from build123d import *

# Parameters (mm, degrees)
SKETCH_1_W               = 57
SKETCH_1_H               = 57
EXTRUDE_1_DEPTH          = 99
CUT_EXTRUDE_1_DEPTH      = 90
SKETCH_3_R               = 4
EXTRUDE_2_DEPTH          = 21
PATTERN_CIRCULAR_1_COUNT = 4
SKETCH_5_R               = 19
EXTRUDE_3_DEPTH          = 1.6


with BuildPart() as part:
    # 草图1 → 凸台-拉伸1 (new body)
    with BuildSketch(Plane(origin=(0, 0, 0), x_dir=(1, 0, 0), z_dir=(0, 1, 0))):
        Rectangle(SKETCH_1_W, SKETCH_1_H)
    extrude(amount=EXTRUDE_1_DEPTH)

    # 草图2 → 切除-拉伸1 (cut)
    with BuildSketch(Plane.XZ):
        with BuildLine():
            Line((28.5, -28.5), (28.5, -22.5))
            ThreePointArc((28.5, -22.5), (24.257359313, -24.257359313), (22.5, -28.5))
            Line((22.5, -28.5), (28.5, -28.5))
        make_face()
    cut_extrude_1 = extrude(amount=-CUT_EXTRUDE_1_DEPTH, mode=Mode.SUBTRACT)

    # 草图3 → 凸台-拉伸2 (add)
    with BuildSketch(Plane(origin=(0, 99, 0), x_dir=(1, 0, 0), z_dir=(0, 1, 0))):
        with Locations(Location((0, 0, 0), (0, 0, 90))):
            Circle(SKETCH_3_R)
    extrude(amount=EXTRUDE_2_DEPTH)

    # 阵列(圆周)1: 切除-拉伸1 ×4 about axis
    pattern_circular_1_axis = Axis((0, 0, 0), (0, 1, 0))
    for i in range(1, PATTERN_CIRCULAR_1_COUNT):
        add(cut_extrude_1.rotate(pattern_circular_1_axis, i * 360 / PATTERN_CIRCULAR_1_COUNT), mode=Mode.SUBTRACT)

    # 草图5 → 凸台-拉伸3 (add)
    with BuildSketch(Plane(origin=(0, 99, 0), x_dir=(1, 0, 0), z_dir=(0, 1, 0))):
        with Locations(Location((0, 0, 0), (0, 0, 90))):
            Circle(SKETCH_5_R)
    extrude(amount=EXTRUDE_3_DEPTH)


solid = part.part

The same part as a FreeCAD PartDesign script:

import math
import FreeCAD as App
import Part
import Sketcher

V = App.Vector

doc = App.newDocument("Part")
body = doc.addObject("PartDesign::Body", "Body")

# Sketch on XZ plane
sketch1 = body.newObject("Sketcher::SketchObject", "Sketch")
sketch1.AttachmentSupport = (doc.getObject("XZ_Plane"), [""])
sketch1.MapMode = "FlatFace"
sketch1.addGeometry([
    Part.LineSegment(V(-28, -28, 0), V(-28, 28, 0)),
    Part.LineSegment(V(-28, 28, 0), V(28, 28, 0)),
    Part.LineSegment(V(28, 28, 0), V(28, -28, 0)),
    Part.LineSegment(V(28, -28, 0), V(-28, -28, 0)),
], False)
sketch1.addConstraint([
    Sketcher.Constraint("Coincident", 0, 2, 1, 1),
    Sketcher.Constraint("Coincident", 1, 2, 2, 1),
    Sketcher.Constraint("Coincident", 2, 2, 3, 1),
    Sketcher.Constraint("Coincident", 3, 2, 0, 1),
    Sketcher.Constraint("Vertical", 0),
    Sketcher.Constraint("Horizontal", 1),
    Sketcher.Constraint("Vertical", 2),
    Sketcher.Constraint("Horizontal", 3),
    Sketcher.Constraint("Symmetric", 0, 2, 2, 2, -1, 1),
    Sketcher.Constraint("Equal", 3, 0),
    Sketcher.Constraint("DistanceX", 1, 1, 1, 2, 57.0),
])
pad1 = body.newObject("PartDesign::Pad", "Pad")
pad1.Profile = sketch1
pad1.Length = 99
pad1.Reversed = True

# Sketch on XZ plane
sketch2 = body.newObject("Sketcher::SketchObject", "Sketch001")
sketch2.AttachmentSupport = (doc.getObject("XZ_Plane"), [""])
sketch2.MapMode = "FlatFace"
sketch2.addGeometry([
    Part.LineSegment(V(28, -28, 0), V(28, -22, 0)),
    Part.ArcOfCircle(Part.Circle(V(28, -28, 0), V(0, 0, 1), 6), math.radians(90), math.radians(180)),
    Part.LineSegment(V(22, -28, 0), V(28, -28, 0)),
], False)
sketch2.addConstraint([
    Sketcher.Constraint("Coincident", 0, 2, 1, 1),
    Sketcher.Constraint("Coincident", 1, 2, 2, 1),
    Sketcher.Constraint("Coincident", 2, 2, 0, 1),
    Sketcher.Constraint("Vertical", 0),
    Sketcher.Constraint("Horizontal", 2),
    Sketcher.Constraint("Coincident", 2, 2, 1, 3),
    Sketcher.Constraint("Radius", 1, 6.0),
    Sketcher.Constraint("DistanceX", -1, 1, 1, 3, 28.5),
    Sketcher.Constraint("DistanceY", 1, 3, -1, 1, 28.5),
])
pocket1 = body.newObject("PartDesign::Pocket", "Pocket")
pocket1.Profile = sketch2
pocket1.Length = 90

# Sketch on XZ plane
sketch3 = body.newObject("Sketcher::SketchObject", "Sketch002")
sketch3.AttachmentSupport = (doc.getObject("XZ_Plane"), [""])
sketch3.MapMode = "FlatFace"
sketch3.AttachmentOffset = App.Placement(V(0, 0, -99), App.Rotation())
sketch3.addGeometry(Part.Circle(V(0, 0, 0), V(0, 0, 1), 4), False)
sketch3.addConstraint([
    Sketcher.Constraint("Coincident", 0, 3, -1, 1),
    Sketcher.Constraint("Diameter", 0, 8.0),
])
pad2 = body.newObject("PartDesign::Pad", "Pad001")
pad2.Profile = sketch3
pad2.Length = 21
pad2.Reversed = True
doc.recompute()

polarpattern = body.newObject("PartDesign::PolarPattern", "PolarPattern")
polarpattern.Originals = [pocket1]
polarpattern.Axis = (doc.getObject("Y_Axis"), [""])
polarpattern.Angle = 360
polarpattern.Occurrences = 4
body.Tip = polarpattern

# Sketch on XZ plane
sketch4 = body.newObject("Sketcher::SketchObject", "Sketch003")
sketch4.AttachmentSupport = (doc.getObject("XZ_Plane"), [""])
sketch4.MapMode = "FlatFace"
sketch4.AttachmentOffset = App.Placement(V(0, 0, -99), App.Rotation())
sketch4.addGeometry(Part.Circle(V(0, 0, 0), V(0, 0, 1), 19), False)
sketch4.addConstraint([
    Sketcher.Constraint("Coincident", 0, 3, -1, 1),
    Sketcher.Constraint("Diameter", 0, 38.0),
])
pad3 = body.newObject("PartDesign::Pad", "Pad002")
pad3.Profile = sketch4
pad3.Length = 1.6
pad3.Reversed = True

doc.recompute()
